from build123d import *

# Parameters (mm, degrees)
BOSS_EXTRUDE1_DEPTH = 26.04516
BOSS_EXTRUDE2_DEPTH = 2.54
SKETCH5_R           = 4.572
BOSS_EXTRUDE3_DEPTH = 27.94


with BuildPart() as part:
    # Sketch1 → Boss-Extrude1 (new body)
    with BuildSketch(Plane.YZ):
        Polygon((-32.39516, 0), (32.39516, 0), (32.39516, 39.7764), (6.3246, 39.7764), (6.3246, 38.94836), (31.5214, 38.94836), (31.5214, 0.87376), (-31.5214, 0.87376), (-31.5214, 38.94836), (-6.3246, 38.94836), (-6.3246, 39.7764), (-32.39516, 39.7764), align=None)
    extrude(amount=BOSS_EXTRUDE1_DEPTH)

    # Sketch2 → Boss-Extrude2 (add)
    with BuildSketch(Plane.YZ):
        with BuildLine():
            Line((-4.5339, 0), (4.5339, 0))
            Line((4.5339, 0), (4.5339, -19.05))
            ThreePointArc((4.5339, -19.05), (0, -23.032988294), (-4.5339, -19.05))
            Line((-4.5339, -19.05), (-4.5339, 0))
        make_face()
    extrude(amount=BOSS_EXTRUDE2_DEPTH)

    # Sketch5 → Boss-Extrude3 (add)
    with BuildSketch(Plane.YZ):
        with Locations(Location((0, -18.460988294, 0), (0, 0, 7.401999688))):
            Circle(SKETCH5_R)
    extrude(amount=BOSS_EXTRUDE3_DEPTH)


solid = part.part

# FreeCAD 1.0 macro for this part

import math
import FreeCAD as App
import Part
import Sketcher
Q = App.Units.Quantity

doc = App.newDocument("Part")
body = doc.addObject("PartDesign::Body", "Body")

# Sketch on YZ plane
sketch1 = body.newObject("Sketcher::SketchObject", "Sketch")
sketch1.AttachmentSupport = (doc.getObject("YZ_Plane"), [""])
sketch1.MapMode = "FlatFace"
sketch1.addGeometry([
    Part.LineSegment(App.Vector(-32.4, 0, 0), App.Vector(32.4, 0, 0)),  # 0
    Part.LineSegment(App.Vector(32.4, 0, 0), App.Vector(32.4, 39.8, 0)),  # 1
    Part.LineSegment(App.Vector(32.4, 39.8, 0), App.Vector(6.3, 39.8, 0)),  # 2
    Part.LineSegment(App.Vector(6.3, 39.8, 0), App.Vector(6.3, 38.9, 0)),  # 3
    Part.LineSegment(App.Vector(6.3, 38.9, 0), App.Vector(31.5, 38.9, 0)),  # 4
    Part.LineSegment(App.Vector(31.5, 38.9, 0), App.Vector(31.5, 0.9, 0)),  # 5
    Part.LineSegment(App.Vector(31.5, 0.9, 0), App.Vector(-31.5, 0.9, 0)),  # 6
    Part.LineSegment(App.Vector(-31.5, 0.9, 0), App.Vector(-31.5, 38.9, 0)),  # 7
    Part.LineSegment(App.Vector(-31.5, 38.9, 0), App.Vector(-6.3, 38.9, 0)),  # 8
    Part.LineSegment(App.Vector(-6.3, 38.9, 0), App.Vector(-6.3, 39.8, 0)),  # 9
    Part.LineSegment(App.Vector(-6.3, 39.8, 0), App.Vector(-32.4, 39.8, 0)),  # 10
    Part.LineSegment(App.Vector(-32.4, 39.8, 0), App.Vector(-32.4, 0, 0)),  # 11
], False)
sketch1.addConstraint([
    Sketcher.Constraint("Coincident", 0, 2, 1, 1),
    Sketcher.Constraint("Coincident", 1, 2, 2, 1),
    Sketcher.Constraint("Coincident", 2, 2, 3, 1),
    Sketcher.Constraint("Coincident", 3, 2, 4, 1),
    Sketcher.Constraint("Coincident", 4, 2, 5, 1),
    Sketcher.Constraint("Coincident", 5, 2, 6, 1),
    Sketcher.Constraint("Coincident", 6, 2, 7, 1),
    Sketcher.Constraint("Coincident", 7, 2, 8, 1),
    Sketcher.Constraint("Coincident", 8, 2, 9, 1),
    Sketcher.Constraint("Coincident", 9, 2, 10, 1),
    Sketcher.Constraint("Coincident", 10, 2, 11, 1),
    Sketcher.Constraint("Coincident", 11, 2, 0, 1),
    Sketcher.Constraint("Horizontal", 0),
    Sketcher.Constraint("Vertical", 1),
    Sketcher.Constraint("Horizontal", 2),
    Sketcher.Constraint("Vertical", 3),
    Sketcher.Constraint("Horizontal", 4),
    Sketcher.Constraint("Vertical", 5),
    Sketcher.Constraint("Horizontal", 6),
    Sketcher.Constraint("Vertical", 7),
    Sketcher.Constraint("Horizontal", 8),
    Sketcher.Constraint("Vertical", 9),
    Sketcher.Constraint("Horizontal", 10),
    Sketcher.Constraint("Vertical", 11),
    Sketcher.Constraint("Symmetric", 0, 2, 11, 2, -1, 1),
    Sketcher.Constraint("Symmetric", 4, 2, 7, 2, -2),
    Sketcher.Constraint("Symmetric", 2, 2, 9, 2, -2),
    Sketcher.Constraint("DistanceX", 4, 1, 4, 2, Q("0.992 in")),
    Sketcher.Constraint("DistanceX", 6, 2, 6, 1, Q("2.482 in")),
    Sketcher.Constraint("DistanceY", 1, 1, 1, 2, Q("1.566 in")),
    Sketcher.Constraint("DistanceY", 5, 2, 5, 1, Q("1.499 in")),
    Sketcher.Constraint("DistanceX", 0, 1, 0, 2, Q("2.5508 in")),
    Sketcher.Constraint("DistanceY", 3, 2, 3, 1, Q("0.0326 in")),
])
pad1 = body.newObject("PartDesign::Pad", "Pad")
pad1.Profile = sketch1
pad1.Length = Q("1.0254 in")

# Sketch on YZ plane
sketch2 = body.newObject("Sketcher::SketchObject", "Sketch001")
sketch2.AttachmentSupport = (doc.getObject("YZ_Plane"), [""])
sketch2.MapMode = "FlatFace"
sketch2.addGeometry([
    Part.LineSegment(App.Vector(4.5, 0, 0), App.Vector(-4.5, 0, 0)),
    Part.LineSegment(App.Vector(-4.5, 0, 0), App.Vector(-4.5, -19.1, 0)),
    Part.ArcOfCircle(Part.Circle(App.Vector(0, -18.5, 0), App.Vector(0, 0, 1), 4.6), math.radians(-173), math.radians(-7)),
    Part.LineSegment(App.Vector(4.5, -19.1, 0), App.Vector(4.5, 0, 0)),
], False)
sketch2.addConstraint([
    Sketcher.Constraint("Coincident", 0, 2, 1, 1),
    Sketcher.Constraint("Coincident", 1, 2, 2, 1),
    Sketcher.Constraint("Coincident", 2, 2, 3, 1),
    Sketcher.Constraint("Coincident", 3, 2, 0, 1),
    Sketcher.Constraint("Horizontal", 0),
    Sketcher.Constraint("Vertical", 1),
    Sketcher.Constraint("Vertical", 3),
    Sketcher.Constraint("Symmetric", 0, 2, 3, 2, -1, 1),
    Sketcher.Constraint("PointOnObject", 2, 3, -2),
    Sketcher.Constraint("Radius", 2, Q("0.18 in")),
    Sketcher.Constraint("DistanceY", 1, 2, 1, 1, Q("0.75 in")),
    Sketcher.Constraint("DistanceX", 0, 2, 0, 1, Q("0.357 in")),
])
pad2 = body.newObject("PartDesign::Pad", "Pad001")
pad2.Profile = sketch2
pad2.Length = Q("0.1 in")

# Sketch on YZ plane
sketch3 = body.newObject("Sketcher::SketchObject", "Sketch002")
sketch3.AttachmentSupport = (doc.getObject("YZ_Plane"), [""])
sketch3.MapMode = "FlatFace"
sketch3.addGeometry(Part.Circle(App.Vector(0, -18.5, 0), App.Vector(0, 0, 1), 4.6), False)
sketch3.addConstraint([
    Sketcher.Constraint("PointOnObject", 0, 3, -2),
    Sketcher.Constraint("Diameter", 0, Q("0.36 in")),
    Sketcher.Constraint("DistanceY", 0, 3, -1, 1, Q("18.460988 mm")),
])
pad3 = body.newObject("PartDesign::Pad", "Pad002")
pad3.Profile = sketch3
pad3.Length = Q("1.1 in")

doc.recompute()
